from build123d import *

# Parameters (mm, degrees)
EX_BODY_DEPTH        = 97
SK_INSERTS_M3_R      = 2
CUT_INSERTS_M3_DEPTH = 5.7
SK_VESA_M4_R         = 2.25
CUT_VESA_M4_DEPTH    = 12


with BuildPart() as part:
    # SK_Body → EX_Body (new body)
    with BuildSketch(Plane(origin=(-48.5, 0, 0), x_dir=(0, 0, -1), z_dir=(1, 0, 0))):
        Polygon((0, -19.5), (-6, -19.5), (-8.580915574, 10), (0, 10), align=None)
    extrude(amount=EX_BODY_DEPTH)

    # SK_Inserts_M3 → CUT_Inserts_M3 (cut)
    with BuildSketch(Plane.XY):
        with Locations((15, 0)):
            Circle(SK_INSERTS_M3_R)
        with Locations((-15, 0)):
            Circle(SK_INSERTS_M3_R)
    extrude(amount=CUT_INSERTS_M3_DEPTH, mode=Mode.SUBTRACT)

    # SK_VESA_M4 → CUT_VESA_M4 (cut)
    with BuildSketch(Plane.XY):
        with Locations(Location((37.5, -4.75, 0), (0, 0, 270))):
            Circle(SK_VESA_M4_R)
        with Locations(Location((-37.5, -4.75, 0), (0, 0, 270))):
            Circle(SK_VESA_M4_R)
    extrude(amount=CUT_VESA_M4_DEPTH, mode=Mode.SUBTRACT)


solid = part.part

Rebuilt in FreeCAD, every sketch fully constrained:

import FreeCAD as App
import Part
import Sketcher
from FreeCAD import Vector
Q = App.Units.Quantity

doc = App.newDocument("Part")
body = doc.addObject("PartDesign::Body", "Body")

sketch1 = body.newObject("Sketcher::SketchObject", "Sketch")
sketch1.AttachmentSupport = (doc.getObject("YZ_Plane"), [""])
sketch1.MapMode = "FlatFace"
sketch1.AttachmentOffset = App.Placement(Vector(0, 0, -48.5), App.Rotation())
sketch1.addGeometry([
    Part.LineSegment(Vector(-20, 6, 0), Vector(-20, 0, 0)),
    Part.LineSegment(Vector(-20, 0, 0), Vector(10, 0, 0)),
    Part.LineSegment(Vector(10, 0, 0), Vector(10, 9, 0)),
    Part.LineSegment(Vector(10, 9, 0), Vector(-20, 6, 0)),
], False)
sketch1.addConstraint([
    Sketcher.Constraint("Coincident", 0, 2, 1, 1),
    Sketcher.Constraint("Coincident", 1, 2, 2, 1),
    Sketcher.Constraint("Coincident", 2, 2, 3, 1),
    Sketcher.Constraint("Coincident", 3, 2, 0, 1),
    Sketcher.Constraint("Vertical", 0),
    Sketcher.Constraint("Horizontal", 1),
    Sketcher.Constraint("Vertical", 2),
    Sketcher.Constraint("PointOnObject", 0, 2, -1),
    Sketcher.Constraint("DistanceY", 0, 2, 0, 1, 6.0),
    Sketcher.Constraint("Angle", 3, Q("-175 deg")),
    Sketcher.Constraint("DistanceX", 1, 1, 1, 2, 29.5),
    Sketcher.Constraint("DistanceX", -1, 1, 1, 2, 10.0),
])
pad1 = body.newObject("PartDesign::Pad", "Pad")
pad1.Profile = sketch1
pad1.Length = 97

sketch2 = body.newObject("Sketcher::SketchObject", "Sketch001")
sketch2.AttachmentSupport = (doc.getObject("XY_Plane"), [""])
sketch2.MapMode = "FlatFace"
sketch2.addGeometry([
    Part.Circle(Vector(15, 0, 0), Vector(0, 0, 1), 2),
    Part.Circle(Vector(-15, 0, 0), Vector(0, 0, 1), 2),
], False)
sketch2.addConstraint([
    Sketcher.Constraint("Equal", 0, 1),
    Sketcher.Constraint("Symmetric", 0, 3, 1, 3, -1, 1),
    Sketcher.Constraint("PointOnObject", 0, 3, -1),
    Sketcher.Constraint("Diameter", 0, 4.0),
    Sketcher.Constraint("DistanceX", -1, 1, 0, 3, 15.0),
])
pocket1 = body.newObject("PartDesign::Pocket", "Pocket")
pocket1.Profile = sketch2
pocket1.Length = 5.7
pocket1.Reversed = True

sketch3 = body.newObject("Sketcher::SketchObject", "Sketch002")
sketch3.AttachmentSupport = (doc.getObject("XY_Plane"), [""])
sketch3.MapMode = "FlatFace"
sketch3.addGeometry([
    Part.Circle(Vector(37.5, -4.8, 0), Vector(0, 0, 1), 2.2),
    Part.Circle(Vector(-37.5, -4.8, 0), Vector(0, 0, 1), 2.2),
], False)
sketch3.addConstraint([
    Sketcher.Constraint("Equal", 0, 1),
    Sketcher.Constraint("Symmetric", 0, 3, 1, 3, -2),
    Sketcher.Constraint("Diameter", 0, 4.5),
    Sketcher.Constraint("DistanceX", 1, 3, 0, 3, 75.0),
    Sketcher.Constraint("DistanceY", 0, 3, -1, 1, 4.75),
])
pocket2 = body.newObject("PartDesign::Pocket", "Pocket001")
pocket2.Profile = sketch3
pocket2.Length = 12
pocket2.Reversed = True

doc.recompute()
